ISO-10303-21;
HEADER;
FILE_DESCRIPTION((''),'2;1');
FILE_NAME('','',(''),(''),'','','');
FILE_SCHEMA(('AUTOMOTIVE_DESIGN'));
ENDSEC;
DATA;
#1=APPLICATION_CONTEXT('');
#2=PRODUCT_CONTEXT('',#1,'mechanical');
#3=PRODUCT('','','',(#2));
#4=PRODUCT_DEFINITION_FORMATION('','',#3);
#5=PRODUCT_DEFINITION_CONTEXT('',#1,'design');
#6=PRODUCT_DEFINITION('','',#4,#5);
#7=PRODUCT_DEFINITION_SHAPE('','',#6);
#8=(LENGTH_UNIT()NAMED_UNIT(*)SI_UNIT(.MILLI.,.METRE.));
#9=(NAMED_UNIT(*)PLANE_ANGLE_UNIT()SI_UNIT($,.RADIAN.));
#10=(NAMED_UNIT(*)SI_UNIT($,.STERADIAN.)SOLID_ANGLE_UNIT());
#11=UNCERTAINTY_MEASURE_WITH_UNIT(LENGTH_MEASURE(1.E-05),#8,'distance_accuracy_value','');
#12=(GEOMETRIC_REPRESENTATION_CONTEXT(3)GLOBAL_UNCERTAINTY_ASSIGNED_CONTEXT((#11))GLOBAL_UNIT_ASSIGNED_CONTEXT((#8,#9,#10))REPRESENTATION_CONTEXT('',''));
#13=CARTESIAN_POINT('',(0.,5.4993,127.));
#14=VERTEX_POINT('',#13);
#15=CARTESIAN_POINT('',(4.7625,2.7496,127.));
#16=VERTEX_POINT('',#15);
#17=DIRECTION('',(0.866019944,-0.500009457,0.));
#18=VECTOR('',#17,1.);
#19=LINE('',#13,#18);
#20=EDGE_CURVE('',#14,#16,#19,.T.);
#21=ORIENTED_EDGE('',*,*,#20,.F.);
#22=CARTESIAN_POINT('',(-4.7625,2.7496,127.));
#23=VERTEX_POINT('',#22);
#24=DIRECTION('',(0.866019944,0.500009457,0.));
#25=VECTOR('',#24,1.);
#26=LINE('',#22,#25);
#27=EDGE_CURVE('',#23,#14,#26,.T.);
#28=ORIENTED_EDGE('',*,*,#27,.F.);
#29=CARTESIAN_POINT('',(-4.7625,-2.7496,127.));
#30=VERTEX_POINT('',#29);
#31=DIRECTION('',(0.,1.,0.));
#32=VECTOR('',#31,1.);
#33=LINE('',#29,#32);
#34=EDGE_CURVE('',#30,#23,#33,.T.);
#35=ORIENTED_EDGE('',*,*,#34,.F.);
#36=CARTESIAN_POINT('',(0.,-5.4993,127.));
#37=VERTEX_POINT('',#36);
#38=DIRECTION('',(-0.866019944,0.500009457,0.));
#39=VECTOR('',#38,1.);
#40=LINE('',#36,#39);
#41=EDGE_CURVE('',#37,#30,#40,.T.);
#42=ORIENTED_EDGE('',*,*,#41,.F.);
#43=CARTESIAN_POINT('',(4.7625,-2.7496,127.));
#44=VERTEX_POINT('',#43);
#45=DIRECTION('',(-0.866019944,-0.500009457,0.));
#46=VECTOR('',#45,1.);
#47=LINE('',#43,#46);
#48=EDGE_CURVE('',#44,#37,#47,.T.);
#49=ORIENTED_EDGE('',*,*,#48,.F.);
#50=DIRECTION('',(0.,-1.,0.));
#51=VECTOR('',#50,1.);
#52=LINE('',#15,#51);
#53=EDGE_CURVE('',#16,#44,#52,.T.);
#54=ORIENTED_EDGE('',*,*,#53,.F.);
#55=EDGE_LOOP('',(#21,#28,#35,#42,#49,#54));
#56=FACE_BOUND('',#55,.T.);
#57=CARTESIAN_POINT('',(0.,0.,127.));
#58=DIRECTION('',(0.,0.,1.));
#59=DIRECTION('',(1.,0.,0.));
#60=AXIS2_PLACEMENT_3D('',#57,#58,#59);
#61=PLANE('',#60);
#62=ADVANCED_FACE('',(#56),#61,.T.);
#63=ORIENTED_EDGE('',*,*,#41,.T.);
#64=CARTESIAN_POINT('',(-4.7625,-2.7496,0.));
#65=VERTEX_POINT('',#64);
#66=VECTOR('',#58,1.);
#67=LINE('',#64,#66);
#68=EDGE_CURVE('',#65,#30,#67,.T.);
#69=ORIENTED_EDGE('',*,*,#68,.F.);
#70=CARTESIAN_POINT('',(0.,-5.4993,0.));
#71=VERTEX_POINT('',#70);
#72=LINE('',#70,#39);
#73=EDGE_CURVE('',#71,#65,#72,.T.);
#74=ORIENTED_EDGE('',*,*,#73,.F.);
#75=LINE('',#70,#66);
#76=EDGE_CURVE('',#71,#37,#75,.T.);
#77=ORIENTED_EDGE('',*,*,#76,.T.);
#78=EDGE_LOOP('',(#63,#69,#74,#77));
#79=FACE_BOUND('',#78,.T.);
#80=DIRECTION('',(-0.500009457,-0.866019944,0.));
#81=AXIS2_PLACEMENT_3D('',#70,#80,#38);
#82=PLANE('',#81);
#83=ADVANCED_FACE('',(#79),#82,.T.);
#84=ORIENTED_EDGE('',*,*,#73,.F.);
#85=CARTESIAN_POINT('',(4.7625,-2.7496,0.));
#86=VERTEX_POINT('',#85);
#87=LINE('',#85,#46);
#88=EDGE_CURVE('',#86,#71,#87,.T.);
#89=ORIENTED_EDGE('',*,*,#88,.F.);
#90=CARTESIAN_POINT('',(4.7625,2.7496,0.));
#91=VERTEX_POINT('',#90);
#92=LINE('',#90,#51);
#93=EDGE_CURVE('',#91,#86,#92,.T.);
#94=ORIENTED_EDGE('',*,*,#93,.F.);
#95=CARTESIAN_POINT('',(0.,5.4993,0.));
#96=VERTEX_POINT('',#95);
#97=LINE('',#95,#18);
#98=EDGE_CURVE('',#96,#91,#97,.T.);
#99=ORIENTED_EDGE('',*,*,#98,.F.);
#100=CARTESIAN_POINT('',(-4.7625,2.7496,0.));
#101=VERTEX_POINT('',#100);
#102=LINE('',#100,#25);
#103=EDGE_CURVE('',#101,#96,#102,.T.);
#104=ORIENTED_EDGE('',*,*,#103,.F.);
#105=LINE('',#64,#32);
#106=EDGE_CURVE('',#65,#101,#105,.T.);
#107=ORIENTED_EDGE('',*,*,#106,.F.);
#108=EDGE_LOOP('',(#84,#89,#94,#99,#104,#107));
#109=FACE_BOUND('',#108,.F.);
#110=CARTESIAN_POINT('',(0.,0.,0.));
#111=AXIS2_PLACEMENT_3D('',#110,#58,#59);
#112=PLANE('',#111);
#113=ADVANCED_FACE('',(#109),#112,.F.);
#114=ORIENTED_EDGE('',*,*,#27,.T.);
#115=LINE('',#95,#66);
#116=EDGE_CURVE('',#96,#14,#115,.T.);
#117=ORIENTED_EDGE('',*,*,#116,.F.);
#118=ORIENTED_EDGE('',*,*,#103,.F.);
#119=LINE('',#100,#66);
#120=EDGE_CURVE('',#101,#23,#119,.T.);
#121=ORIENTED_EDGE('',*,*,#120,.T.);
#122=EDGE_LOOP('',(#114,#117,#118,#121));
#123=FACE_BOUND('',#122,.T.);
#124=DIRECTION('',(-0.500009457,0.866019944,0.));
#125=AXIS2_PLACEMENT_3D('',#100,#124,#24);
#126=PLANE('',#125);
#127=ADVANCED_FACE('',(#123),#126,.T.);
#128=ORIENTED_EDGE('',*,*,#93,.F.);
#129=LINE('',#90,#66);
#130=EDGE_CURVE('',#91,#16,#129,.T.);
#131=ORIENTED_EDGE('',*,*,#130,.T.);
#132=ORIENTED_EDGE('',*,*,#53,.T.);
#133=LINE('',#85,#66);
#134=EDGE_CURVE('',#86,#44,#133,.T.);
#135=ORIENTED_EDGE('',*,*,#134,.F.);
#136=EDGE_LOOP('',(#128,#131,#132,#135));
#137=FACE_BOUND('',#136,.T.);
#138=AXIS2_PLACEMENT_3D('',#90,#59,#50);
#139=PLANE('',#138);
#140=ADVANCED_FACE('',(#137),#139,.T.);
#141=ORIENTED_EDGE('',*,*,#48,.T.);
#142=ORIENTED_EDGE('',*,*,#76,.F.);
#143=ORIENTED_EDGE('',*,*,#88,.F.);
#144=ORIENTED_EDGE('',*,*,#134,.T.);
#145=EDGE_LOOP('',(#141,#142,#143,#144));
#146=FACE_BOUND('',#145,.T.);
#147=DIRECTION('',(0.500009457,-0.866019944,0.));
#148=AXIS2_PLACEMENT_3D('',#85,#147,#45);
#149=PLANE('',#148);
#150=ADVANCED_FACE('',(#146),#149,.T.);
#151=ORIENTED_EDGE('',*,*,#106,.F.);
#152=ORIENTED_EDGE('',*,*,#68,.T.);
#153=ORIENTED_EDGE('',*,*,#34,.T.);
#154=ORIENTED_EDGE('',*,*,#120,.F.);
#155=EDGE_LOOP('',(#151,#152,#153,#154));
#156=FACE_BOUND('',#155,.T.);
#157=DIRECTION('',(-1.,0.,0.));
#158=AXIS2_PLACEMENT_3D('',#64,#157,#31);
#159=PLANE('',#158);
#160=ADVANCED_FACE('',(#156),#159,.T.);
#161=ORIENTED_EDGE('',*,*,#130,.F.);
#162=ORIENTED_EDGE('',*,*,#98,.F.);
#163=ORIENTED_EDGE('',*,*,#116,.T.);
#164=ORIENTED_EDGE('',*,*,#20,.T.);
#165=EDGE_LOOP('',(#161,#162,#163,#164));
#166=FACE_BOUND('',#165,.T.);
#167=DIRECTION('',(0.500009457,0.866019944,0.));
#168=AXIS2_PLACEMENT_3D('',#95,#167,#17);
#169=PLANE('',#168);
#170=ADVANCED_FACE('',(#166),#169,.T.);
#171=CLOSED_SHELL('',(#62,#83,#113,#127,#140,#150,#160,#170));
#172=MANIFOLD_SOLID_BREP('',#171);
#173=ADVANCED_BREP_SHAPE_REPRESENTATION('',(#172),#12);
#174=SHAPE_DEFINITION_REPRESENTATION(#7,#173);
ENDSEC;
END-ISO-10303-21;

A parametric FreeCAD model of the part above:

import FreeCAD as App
import Part
import Sketcher

V = App.Vector
Q = App.Units.Quantity


def add_polygon(sketch, points):
    """Adds a closed chain of lines whose ends are joined by coincident constraints."""
    first, n = sketch.GeometryCount, len(points)
    for a, b in zip(points, points[1:] + points[:1]):
        sketch.addGeometry(Part.LineSegment(App.Vector(*a, 0), App.Vector(*b, 0)), False)
    for i in range(n):
        sketch.addConstraint(Sketcher.Constraint("Coincident", first + i, 2, first + (i + 1) % n, 1))

doc = App.newDocument("Part")
body = doc.addObject("PartDesign::Body", "Body")

sketch1 = doc.addObject("Sketcher::SketchObject", "Sketch")
body.addObject(sketch1)
sketch1.AttachmentSupport = (doc.XY_Plane, [""])
sketch1.MapMode = "FlatFace"
add_polygon(sketch1, [(5, 3), (0, 5), (-5, 3), (-5, -3), (0, -5), (5, -3)])
sketch1.addConstraint(Sketcher.Constraint("Vertical", 2))
sketch1.addConstraint(Sketcher.Constraint("Vertical", 5))
sketch1.addConstraint(Sketcher.Constraint("Symmetric", 0, 2, 3, 2, -1, 1))
sketch1.addConstraint(Sketcher.Constraint("Symmetric", 1, 2, 4, 2, -1, 1))
sketch1.addConstraint(Sketcher.Constraint("PointOnObject", 0, 2, -2))
sketch1.addConstraint(Sketcher.Constraint("Parallel", 0, 3))
sketch1.addConstraint(Sketcher.Constraint("Horizontal", 2, 2, 4, 2))
sketch1.addConstraint(Sketcher.Constraint("Angle", 0, Q("149.9994 deg")))
sketch1.addConstraint(Sketcher.Constraint("DistanceX", 2, 2, 4, 2, Q("0.375 in")))
sketch1.addConstraint(Sketcher.Constraint("DistanceY", 2, 2, 2, 1, Q("0.2165 in")))
pad1 = doc.addObject("PartDesign::Pad", "Pad")
body.addObject(pad1)
pad1.Profile = sketch1
pad1.Length = Q("5 in")

doc.recompute()
